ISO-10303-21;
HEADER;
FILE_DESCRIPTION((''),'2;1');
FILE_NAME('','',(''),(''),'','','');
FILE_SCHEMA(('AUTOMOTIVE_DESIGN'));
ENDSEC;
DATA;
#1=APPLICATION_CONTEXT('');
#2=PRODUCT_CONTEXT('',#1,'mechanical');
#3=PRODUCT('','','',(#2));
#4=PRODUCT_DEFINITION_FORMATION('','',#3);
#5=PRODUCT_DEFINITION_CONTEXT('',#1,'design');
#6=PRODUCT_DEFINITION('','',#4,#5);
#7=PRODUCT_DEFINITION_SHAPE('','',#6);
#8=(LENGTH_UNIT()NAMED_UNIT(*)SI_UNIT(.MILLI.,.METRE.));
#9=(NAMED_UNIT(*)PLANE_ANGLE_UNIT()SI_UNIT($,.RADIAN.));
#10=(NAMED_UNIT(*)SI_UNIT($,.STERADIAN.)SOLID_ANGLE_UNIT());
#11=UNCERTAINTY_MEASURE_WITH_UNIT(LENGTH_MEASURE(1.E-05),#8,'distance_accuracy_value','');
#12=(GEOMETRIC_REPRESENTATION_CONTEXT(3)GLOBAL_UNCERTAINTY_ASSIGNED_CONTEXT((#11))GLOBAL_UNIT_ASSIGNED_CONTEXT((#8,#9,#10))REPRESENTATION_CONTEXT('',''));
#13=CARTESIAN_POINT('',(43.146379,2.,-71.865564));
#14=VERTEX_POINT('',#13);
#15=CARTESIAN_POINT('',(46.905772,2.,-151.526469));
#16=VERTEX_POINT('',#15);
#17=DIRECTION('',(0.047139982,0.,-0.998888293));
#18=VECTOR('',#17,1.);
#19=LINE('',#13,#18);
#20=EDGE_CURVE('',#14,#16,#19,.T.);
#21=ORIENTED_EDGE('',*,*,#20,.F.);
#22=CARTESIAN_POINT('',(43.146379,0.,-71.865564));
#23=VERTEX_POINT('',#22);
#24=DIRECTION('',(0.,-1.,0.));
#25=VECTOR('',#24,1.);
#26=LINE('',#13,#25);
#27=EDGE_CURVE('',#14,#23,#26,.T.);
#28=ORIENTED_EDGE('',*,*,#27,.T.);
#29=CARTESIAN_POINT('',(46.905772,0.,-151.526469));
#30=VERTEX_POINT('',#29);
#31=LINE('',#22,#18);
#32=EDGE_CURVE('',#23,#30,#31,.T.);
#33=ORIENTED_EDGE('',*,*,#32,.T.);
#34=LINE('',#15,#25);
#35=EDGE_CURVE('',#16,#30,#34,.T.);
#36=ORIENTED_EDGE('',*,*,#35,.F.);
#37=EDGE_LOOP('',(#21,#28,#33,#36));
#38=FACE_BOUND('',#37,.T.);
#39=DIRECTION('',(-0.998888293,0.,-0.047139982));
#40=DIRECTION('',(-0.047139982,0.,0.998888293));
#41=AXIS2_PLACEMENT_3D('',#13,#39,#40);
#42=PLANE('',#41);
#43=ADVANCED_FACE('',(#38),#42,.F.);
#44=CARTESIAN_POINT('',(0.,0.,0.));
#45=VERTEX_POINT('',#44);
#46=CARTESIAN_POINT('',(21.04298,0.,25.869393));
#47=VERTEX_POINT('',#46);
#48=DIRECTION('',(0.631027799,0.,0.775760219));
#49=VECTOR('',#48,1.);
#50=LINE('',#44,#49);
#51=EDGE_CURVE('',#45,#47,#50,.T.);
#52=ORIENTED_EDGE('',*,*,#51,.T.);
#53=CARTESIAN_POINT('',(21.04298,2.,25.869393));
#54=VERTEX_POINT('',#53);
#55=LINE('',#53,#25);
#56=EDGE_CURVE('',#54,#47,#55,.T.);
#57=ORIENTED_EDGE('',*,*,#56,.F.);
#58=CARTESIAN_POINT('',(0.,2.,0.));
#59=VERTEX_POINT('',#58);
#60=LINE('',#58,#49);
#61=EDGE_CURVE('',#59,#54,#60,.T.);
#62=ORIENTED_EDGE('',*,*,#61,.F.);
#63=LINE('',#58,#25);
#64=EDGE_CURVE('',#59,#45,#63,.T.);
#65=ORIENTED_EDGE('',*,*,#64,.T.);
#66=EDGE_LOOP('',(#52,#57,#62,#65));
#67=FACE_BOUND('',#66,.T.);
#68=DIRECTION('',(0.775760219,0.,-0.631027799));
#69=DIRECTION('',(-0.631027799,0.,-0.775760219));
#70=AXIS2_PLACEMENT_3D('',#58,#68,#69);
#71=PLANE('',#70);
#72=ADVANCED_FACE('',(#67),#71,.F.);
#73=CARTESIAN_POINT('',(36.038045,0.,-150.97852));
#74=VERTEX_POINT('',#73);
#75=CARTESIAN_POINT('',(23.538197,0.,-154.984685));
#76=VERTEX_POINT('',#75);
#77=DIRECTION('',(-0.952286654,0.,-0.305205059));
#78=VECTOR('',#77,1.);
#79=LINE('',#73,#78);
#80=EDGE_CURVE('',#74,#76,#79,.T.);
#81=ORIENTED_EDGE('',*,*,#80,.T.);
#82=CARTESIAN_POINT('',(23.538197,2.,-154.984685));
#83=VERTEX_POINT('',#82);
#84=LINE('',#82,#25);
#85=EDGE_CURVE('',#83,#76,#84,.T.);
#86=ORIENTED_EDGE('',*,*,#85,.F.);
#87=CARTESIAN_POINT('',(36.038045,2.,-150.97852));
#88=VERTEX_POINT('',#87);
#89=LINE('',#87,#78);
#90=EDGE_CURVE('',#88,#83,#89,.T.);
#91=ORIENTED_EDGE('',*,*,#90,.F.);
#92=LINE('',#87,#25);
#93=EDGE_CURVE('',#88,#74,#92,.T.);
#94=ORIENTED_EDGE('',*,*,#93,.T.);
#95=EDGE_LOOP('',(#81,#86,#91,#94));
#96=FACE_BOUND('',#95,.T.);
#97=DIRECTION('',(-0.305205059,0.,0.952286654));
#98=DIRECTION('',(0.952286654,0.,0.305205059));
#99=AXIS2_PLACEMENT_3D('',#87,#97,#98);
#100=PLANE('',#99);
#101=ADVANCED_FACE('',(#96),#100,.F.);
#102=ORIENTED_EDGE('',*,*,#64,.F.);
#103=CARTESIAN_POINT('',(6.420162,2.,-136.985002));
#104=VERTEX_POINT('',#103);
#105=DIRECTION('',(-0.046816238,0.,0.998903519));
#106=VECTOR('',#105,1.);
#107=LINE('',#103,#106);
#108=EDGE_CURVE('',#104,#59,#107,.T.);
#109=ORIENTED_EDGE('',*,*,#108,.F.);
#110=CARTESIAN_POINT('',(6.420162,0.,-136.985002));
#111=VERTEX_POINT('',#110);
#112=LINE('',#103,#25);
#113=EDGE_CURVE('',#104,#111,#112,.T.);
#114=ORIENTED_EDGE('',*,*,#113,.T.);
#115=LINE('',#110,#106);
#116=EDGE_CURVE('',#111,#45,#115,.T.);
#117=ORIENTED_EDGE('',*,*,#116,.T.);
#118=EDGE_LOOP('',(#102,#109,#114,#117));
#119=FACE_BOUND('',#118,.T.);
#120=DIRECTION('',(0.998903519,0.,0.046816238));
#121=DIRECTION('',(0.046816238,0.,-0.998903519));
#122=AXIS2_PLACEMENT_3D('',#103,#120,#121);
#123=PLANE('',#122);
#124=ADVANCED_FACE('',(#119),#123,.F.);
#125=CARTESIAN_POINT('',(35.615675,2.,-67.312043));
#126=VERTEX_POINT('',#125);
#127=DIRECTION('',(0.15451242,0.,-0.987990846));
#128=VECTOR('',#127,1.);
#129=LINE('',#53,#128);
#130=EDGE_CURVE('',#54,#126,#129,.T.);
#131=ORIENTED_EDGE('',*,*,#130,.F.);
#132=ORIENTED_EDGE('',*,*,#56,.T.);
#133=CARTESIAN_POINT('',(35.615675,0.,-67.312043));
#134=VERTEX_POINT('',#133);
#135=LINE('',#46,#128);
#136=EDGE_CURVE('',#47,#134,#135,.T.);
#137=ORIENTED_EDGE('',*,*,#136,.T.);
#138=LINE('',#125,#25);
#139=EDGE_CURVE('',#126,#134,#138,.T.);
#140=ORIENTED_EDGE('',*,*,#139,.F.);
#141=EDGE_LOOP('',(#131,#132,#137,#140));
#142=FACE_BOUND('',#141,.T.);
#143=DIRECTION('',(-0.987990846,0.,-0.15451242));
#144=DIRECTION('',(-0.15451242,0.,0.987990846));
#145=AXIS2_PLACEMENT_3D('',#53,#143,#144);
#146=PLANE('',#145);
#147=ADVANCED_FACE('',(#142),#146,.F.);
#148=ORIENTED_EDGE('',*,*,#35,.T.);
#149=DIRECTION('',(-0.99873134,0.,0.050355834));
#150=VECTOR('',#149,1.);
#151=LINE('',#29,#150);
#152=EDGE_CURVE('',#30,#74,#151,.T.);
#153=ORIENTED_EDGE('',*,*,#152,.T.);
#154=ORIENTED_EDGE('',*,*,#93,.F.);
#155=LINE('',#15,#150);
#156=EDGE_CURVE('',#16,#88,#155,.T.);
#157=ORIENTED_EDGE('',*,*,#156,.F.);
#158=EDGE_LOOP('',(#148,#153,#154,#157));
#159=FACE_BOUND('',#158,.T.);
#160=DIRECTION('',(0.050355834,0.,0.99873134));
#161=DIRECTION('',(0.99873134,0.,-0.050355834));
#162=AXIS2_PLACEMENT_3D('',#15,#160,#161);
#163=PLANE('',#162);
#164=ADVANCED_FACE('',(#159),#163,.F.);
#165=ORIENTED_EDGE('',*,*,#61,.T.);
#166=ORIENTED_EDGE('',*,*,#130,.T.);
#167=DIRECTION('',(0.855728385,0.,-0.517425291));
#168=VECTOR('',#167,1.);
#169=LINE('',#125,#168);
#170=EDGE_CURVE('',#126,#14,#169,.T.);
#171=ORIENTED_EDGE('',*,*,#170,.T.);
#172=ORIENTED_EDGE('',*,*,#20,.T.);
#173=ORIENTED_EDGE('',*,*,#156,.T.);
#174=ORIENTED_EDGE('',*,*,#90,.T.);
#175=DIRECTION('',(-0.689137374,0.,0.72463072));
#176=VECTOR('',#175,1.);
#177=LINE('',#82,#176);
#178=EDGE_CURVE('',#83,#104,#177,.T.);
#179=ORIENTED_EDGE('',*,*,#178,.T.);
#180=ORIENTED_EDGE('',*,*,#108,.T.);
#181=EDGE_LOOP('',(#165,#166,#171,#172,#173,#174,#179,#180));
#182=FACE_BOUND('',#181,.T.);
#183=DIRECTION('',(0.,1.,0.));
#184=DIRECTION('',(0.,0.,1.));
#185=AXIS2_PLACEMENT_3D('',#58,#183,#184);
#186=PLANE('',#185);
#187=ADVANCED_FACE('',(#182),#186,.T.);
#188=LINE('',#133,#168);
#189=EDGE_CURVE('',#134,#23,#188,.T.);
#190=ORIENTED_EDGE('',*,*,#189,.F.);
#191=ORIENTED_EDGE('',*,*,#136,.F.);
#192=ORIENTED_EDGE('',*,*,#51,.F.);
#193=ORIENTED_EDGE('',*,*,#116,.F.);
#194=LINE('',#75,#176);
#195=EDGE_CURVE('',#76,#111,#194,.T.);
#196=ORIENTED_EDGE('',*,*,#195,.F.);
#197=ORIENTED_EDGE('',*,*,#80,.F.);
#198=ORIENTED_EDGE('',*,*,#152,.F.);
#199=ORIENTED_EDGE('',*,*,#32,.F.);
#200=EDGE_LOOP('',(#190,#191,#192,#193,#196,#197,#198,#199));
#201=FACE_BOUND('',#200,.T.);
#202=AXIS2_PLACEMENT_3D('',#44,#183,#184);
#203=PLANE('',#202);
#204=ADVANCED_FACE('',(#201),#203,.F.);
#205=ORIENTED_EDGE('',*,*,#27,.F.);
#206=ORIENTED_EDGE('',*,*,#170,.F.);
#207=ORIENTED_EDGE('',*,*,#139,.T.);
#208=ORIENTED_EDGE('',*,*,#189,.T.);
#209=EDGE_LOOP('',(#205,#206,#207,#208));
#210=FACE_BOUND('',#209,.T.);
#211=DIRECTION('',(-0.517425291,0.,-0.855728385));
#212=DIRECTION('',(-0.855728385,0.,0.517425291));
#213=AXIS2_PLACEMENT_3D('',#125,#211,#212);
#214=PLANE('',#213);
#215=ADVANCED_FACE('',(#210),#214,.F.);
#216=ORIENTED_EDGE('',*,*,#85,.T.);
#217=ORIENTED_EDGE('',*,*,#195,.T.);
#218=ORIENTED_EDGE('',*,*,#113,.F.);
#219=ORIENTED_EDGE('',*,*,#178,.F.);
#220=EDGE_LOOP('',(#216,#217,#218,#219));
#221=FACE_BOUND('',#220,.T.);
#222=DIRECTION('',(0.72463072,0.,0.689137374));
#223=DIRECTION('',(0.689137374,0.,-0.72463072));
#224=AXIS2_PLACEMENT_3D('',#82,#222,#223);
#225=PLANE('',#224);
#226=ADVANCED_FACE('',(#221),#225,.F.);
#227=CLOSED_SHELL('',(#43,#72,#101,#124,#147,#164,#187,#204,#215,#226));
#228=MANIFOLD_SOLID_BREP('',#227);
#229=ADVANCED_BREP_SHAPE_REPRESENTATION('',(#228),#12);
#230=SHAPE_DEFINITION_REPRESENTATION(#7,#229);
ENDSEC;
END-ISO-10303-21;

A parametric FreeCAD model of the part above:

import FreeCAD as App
import Part
import Sketcher

V = App.Vector
Q = App.Units.Quantity


def add_polygon(sketch, points):
    """Adds a closed chain of lines whose ends are joined by coincident constraints."""
    first, n = sketch.GeometryCount, len(points)
    for a, b in zip(points, points[1:] + points[:1]):
        sketch.addGeometry(Part.LineSegment(App.Vector(*a, 0), App.Vector(*b, 0)), False)
    for i in range(n):
        sketch.addConstraint(Sketcher.Constraint("Coincident", first + i, 2, first + (i + 1) % n, 1))

doc = App.newDocument("Part")
body = doc.addObject("PartDesign::Body", "Body")

# Sketch on XZ plane
sketch1 = body.newObject("Sketcher::SketchObject", "Sketch")
sketch1.AttachmentSupport = (doc.getObject("XZ_Plane"), [""])
sketch1.MapMode = "FlatFace"
add_polygon(sketch1, [(47, -152), (36, -151), (24, -155), (6, -137), (0, 0), (21, 26), (36, -67), (43, -72)])  # lines 0-7
sketch1.addConstraint(Sketcher.Constraint("Coincident", 3, 2, -1, 1))
sketch1.addConstraint(Sketcher.Constraint("Distance", 2, Q("24.839801 mm")))
sketch1.addConstraint(Sketcher.Constraint("Distance", 1, Q("13.12614 mm")))
sketch1.addConstraint(Sketcher.Constraint("Distance", 3, Q("137.135369 mm")))
sketch1.addConstraint(Sketcher.Constraint("Distance", 4, Q("33.347151 mm")))
sketch1.addConstraint(Sketcher.Constraint("Distance", 5, Q("94.314069 mm")))
sketch1.addConstraint(Sketcher.Constraint("DistanceY", 0, 2, -1, 1, Q("150.97852 mm")))
sketch1.addConstraint(Sketcher.Constraint("DistanceX", -1, 1, 4, 2, Q("21.04298 mm")))
sketch1.addConstraint(Sketcher.Constraint("DistanceX", -1, 1, 6, 2, Q("43.146379 mm")))
sketch1.addConstraint(Sketcher.Constraint("DistanceX", -1, 1, 7, 2, Q("46.905772 mm")))
sketch1.addConstraint(Sketcher.Constraint("DistanceY", 7, 2, -1, 1, Q("151.526469 mm")))
sketch1.addConstraint(Sketcher.Constraint("DistanceY", 0, 2, 2, 2, Q("13.993518 mm")))
sketch1.addConstraint(Sketcher.Constraint("DistanceY", 1, 2, 4, 2, Q("180.854078 mm")))
sketch1.addConstraint(Sketcher.Constraint("DistanceY", 2, 2, 5, 2, Q("69.672959 mm")))
sketch1.addConstraint(Sketcher.Constraint("DistanceY", 6, 2, 5, 2, Q("4.553521 mm")))
pad1 = body.newObject("PartDesign::Pad", "Pad")
pad1.Profile = sketch1
pad1.Length = 2
pad1.Reversed = True

doc.recompute()
